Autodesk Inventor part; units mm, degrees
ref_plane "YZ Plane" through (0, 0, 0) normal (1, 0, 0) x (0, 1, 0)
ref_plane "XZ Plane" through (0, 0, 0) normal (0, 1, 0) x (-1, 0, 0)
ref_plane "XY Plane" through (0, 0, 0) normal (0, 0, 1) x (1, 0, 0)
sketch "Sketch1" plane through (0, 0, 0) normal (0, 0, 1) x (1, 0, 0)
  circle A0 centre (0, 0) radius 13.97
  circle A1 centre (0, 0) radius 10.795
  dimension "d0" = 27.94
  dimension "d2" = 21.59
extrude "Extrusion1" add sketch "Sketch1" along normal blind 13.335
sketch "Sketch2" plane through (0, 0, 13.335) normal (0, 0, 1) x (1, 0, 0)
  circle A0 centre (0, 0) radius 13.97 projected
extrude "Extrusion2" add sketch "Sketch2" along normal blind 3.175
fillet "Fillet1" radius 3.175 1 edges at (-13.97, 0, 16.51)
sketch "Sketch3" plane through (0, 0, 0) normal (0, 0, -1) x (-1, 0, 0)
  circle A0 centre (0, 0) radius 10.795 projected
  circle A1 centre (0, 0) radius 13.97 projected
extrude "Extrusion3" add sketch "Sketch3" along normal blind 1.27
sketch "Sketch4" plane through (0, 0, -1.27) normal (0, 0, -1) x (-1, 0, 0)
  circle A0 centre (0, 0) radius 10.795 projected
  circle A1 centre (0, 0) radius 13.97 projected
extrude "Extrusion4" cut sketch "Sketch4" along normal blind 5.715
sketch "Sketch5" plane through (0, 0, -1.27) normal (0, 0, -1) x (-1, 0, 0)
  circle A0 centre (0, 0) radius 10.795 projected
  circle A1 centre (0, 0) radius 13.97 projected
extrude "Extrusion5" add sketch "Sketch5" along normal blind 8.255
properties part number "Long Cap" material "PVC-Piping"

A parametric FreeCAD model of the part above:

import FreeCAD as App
import Part
import Sketcher

V = App.Vector
Q = App.Units.Quantity


def edges_at(feature, points):
    """Names of the edges that pass closest to the given points."""
    edges = feature.Shape.Edges
    near = lambda p: min(range(len(edges)), key=lambda i: edges[i].distToShape(Part.Vertex(*p))[0])
    return sorted({f"Edge{near(p) + 1}" for p in points})

doc = App.newDocument("Part")
body = doc.addObject("PartDesign::Body", "Body")

sketch1 = body.newObject("Sketcher::SketchObject", "Sketch")
sketch1.AttachmentSupport = (doc.getObject("XY_Plane"), [""])
sketch1.MapMode = "FlatFace"
sketch1.addGeometry(Part.Circle(V(0, 0, 0), V(0, 0, 1), 13.97), False)
sketch1.addGeometry(Part.Circle(V(0, 0, 0), V(0, 0, 1), 10.795), False)
sketch1.addConstraint(Sketcher.Constraint("Coincident", 0, 3, -1, 1))
sketch1.addConstraint(Sketcher.Constraint("Coincident", 1, 3, -1, 1))
sketch1.addConstraint(Sketcher.Constraint("Diameter", 0, Q("1.1 in")))
sketch1.addConstraint(Sketcher.Constraint("Diameter", 1, Q("0.85 in")))
pad1 = body.newObject("PartDesign::Pad", "Pad")
pad1.Profile = sketch1
pad1.Length = Q("0.525 in")

sketch2 = body.newObject("Sketcher::SketchObject", "Sketch001")
sketch2.AttachmentSupport = (doc.getObject("XY_Plane"), [""])
sketch2.MapMode = "FlatFace"
sketch2.AttachmentOffset = App.Placement(V(0, 0, 0.525 * 25.4), App.Rotation())
sketch2.addGeometry(Part.Circle(V(0, 0, 0), V(0, 0, 1), 13.97), False)
sketch2.addConstraint(Sketcher.Constraint("Coincident", 0, 3, -1, 1))
sketch2.addConstraint(Sketcher.Constraint("Diameter", 0, Q("1.1 in")))
pad2 = body.newObject("PartDesign::Pad", "Pad001")
pad2.Profile = sketch2
pad2.Length = Q("0.125 in")
doc.recompute()

fillet = body.newObject("PartDesign::Fillet", "Fillet")
fillet.Base = (pad2, edges_at(pad2, [(-13.97, 0, 16.51)]))
fillet.Radius = Q("0.125 in")

sketch3 = body.newObject("Sketcher::SketchObject", "Sketch002")
sketch3.AttachmentSupport = (doc.getObject("XY_Plane"), [""])
sketch3.MapMode = "FlatFace"
sketch3.addGeometry(Part.Circle(V(0, 0, 0), V(0, 0, 1), 13.97), False)
sketch3.addGeometry(Part.Circle(V(0, 0, 0), V(0, 0, 1), 10.795), False)
sketch3.addConstraint(Sketcher.Constraint("Coincident", 0, 3, -1, 1))
sketch3.addConstraint(Sketcher.Constraint("Coincident", 1, 3, -1, 1))
sketch3.addConstraint(Sketcher.Constraint("Diameter", 0, Q("1.1 in")))
sketch3.addConstraint(Sketcher.Constraint("Diameter", 1, Q("0.85 in")))
pad3 = body.newObject("PartDesign::Pad", "Pad002")
pad3.Profile = sketch3
pad3.Length = Q("0.05 in")
pad3.Reversed = True

sketch4 = body.newObject("Sketcher::SketchObject", "Sketch003")
sketch4.AttachmentSupport = (doc.getObject("XY_Plane"), [""])
sketch4.MapMode = "FlatFace"
sketch4.AttachmentOffset = App.Placement(V(0, 0, -0.05 * 25.4), App.Rotation())
sketch4.addGeometry(Part.Circle(V(0, 0, 0), V(0, 0, 1), 13.97), False)
sketch4.addGeometry(Part.Circle(V(0, 0, 0), V(0, 0, 1), 10.795), False)
sketch4.addConstraint(Sketcher.Constraint("Coincident", 0, 3, -1, 1))
sketch4.addConstraint(Sketcher.Constraint("Coincident", 1, 3, -1, 1))
sketch4.addConstraint(Sketcher.Constraint("Diameter", 0, Q("1.1 in")))
sketch4.addConstraint(Sketcher.Constraint("Diameter", 1, Q("0.85 in")))
pocket1 = body.newObject("PartDesign::Pocket", "Pocket")
pocket1.Profile = sketch4
pocket1.Length = Q("0.225 in")

sketch5 = body.newObject("Sketcher::SketchObject", "Sketch004")
sketch5.AttachmentSupport = (doc.getObject("XY_Plane"), [""])
sketch5.MapMode = "FlatFace"
sketch5.AttachmentOffset = App.Placement(V(0, 0, -0.05 * 25.4), App.Rotation())
sketch5.addGeometry(Part.Circle(V(0, 0, 0), V(0, 0, 1), 13.97), False)
sketch5.addGeometry(Part.Circle(V(0, 0, 0), V(0, 0, 1), 10.795), False)
sketch5.addConstraint(Sketcher.Constraint("Coincident", 0, 3, -1, 1))
sketch5.addConstraint(Sketcher.Constraint("Coincident", 1, 3, -1, 1))
sketch5.addConstraint(Sketcher.Constraint("Diameter", 0, Q("1.1 in")))
sketch5.addConstraint(Sketcher.Constraint("Diameter", 1, Q("0.85 in")))
pad4 = body.newObject("PartDesign::Pad", "Pad003")
pad4.Profile = sketch5
pad4.Length = Q("0.325 in")
pad4.Reversed = True

doc.recompute()
